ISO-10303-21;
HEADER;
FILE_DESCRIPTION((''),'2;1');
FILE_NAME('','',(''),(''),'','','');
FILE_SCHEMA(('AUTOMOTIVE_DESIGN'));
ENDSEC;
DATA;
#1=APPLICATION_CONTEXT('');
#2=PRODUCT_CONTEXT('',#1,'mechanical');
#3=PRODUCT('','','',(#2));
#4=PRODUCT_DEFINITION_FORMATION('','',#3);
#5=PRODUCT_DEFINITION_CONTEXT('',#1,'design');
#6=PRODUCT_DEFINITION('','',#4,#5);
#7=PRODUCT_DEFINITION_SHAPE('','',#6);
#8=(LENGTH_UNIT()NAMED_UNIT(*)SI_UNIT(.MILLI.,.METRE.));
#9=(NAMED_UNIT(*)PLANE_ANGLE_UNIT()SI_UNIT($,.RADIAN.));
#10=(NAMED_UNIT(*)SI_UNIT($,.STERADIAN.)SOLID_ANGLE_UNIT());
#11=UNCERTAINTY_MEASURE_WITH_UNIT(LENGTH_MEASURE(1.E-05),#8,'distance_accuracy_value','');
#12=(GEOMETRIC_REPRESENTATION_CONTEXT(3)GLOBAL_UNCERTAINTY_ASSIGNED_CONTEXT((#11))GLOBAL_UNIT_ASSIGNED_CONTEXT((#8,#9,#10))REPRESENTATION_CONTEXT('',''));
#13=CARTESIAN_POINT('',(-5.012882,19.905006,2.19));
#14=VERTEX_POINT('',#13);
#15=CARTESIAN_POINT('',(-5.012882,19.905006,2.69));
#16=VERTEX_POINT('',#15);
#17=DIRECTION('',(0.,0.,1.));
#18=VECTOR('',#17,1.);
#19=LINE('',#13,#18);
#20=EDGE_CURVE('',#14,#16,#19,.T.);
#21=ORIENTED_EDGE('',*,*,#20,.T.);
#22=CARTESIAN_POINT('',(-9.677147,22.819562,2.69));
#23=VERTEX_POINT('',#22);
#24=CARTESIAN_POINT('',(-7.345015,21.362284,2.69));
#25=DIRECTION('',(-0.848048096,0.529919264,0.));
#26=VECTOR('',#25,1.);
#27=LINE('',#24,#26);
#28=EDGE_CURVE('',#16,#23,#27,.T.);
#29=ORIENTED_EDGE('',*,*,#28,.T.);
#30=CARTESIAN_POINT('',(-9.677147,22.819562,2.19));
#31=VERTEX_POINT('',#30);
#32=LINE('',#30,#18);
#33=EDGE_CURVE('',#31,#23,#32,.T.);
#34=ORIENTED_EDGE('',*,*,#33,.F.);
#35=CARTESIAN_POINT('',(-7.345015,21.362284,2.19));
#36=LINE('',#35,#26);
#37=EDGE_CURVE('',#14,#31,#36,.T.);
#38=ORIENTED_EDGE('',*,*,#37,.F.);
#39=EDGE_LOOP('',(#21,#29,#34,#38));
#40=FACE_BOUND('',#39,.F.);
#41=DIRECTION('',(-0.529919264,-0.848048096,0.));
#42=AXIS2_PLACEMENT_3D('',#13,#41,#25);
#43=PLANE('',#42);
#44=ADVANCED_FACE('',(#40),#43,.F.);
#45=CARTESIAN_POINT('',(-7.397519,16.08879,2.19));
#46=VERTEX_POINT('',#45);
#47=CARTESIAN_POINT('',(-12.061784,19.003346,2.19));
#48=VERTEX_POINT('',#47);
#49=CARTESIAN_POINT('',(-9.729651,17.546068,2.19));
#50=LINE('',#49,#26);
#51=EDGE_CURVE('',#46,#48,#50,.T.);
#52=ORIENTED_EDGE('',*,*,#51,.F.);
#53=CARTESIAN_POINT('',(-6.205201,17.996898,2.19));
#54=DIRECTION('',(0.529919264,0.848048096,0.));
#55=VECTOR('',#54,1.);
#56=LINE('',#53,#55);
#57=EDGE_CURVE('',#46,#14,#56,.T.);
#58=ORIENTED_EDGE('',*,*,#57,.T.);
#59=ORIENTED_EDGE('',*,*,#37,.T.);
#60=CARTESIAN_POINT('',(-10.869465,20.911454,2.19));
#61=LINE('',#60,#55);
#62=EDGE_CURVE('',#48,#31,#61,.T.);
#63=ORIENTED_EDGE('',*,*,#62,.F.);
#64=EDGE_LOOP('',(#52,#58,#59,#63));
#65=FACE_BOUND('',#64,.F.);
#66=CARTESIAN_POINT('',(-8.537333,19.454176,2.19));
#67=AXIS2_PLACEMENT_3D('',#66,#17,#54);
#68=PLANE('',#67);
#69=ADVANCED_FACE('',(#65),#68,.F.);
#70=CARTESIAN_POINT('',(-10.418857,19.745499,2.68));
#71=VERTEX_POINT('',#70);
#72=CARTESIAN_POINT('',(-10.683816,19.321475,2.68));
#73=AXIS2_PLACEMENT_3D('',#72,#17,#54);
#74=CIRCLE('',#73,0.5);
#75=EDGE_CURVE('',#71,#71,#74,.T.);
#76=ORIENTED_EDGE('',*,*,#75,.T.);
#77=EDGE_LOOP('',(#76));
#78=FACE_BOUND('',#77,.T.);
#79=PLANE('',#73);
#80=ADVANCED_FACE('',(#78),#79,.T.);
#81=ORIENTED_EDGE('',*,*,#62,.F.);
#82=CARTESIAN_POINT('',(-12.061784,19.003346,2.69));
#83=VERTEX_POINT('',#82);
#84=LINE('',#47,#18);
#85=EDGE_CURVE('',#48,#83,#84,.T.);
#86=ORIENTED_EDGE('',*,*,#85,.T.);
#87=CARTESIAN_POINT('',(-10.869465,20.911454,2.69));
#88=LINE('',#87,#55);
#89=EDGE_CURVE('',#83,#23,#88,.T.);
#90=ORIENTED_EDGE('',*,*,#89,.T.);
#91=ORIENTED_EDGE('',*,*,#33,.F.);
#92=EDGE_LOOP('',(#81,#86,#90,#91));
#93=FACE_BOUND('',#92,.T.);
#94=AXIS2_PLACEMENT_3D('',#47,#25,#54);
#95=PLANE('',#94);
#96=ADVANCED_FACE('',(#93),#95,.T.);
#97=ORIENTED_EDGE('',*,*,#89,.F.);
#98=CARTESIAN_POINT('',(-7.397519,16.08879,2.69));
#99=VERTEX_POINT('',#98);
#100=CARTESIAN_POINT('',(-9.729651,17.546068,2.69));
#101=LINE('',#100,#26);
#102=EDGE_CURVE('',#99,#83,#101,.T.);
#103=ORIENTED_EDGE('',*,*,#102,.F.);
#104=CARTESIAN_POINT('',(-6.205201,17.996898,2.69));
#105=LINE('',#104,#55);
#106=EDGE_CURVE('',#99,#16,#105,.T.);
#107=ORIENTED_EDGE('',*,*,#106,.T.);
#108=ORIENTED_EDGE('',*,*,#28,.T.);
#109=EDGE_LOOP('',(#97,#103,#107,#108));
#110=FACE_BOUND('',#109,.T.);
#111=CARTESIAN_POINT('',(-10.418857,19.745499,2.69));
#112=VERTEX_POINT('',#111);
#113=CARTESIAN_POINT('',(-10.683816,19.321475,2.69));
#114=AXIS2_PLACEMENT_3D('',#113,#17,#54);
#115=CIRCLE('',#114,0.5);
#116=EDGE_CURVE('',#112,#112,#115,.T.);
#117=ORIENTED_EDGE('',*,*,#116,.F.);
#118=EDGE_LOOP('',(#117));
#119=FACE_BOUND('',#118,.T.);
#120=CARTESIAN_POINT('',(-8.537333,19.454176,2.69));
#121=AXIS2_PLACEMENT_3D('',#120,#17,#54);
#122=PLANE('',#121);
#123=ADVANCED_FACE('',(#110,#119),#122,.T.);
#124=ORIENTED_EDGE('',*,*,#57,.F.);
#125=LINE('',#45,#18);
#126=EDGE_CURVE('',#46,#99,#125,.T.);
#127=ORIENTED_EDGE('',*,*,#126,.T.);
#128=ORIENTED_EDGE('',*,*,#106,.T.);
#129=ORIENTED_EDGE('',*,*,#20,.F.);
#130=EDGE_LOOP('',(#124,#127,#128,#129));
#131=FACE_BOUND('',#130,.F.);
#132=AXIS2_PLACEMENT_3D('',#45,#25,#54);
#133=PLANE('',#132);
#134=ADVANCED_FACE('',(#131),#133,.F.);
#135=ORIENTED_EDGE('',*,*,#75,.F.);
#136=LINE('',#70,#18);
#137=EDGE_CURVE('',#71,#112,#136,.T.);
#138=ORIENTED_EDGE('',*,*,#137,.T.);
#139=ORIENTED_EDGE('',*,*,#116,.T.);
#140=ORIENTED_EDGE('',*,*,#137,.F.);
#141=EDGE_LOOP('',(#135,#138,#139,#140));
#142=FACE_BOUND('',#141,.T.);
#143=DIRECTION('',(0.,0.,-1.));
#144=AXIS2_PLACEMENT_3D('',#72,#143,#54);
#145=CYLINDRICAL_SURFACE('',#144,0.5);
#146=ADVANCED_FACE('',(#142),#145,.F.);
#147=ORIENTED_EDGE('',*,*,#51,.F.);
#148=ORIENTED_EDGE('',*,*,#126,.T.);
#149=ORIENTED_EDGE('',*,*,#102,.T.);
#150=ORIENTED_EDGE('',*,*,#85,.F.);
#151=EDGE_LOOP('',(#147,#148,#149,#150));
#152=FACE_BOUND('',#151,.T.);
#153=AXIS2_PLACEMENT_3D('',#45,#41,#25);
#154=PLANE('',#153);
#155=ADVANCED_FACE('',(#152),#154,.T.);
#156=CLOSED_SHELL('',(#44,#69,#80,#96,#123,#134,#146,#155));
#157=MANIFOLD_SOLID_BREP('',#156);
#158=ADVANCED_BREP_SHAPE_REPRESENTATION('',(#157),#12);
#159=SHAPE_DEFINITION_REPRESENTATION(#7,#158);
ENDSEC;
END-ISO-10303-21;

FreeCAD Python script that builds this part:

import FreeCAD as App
import Part
import Sketcher
Q = App.Units.Quantity


def add_polygon(sketch, points):
    """Adds a closed chain of lines whose ends are joined by coincident constraints."""
    first, n = sketch.GeometryCount, len(points)
    for a, b in zip(points, points[1:] + points[:1]):
        sketch.addGeometry(Part.LineSegment(App.Vector(*a, 0), App.Vector(*b, 0)), False)
    for i in range(n):
        sketch.addConstraint(Sketcher.Constraint("Coincident", first + i, 2, first + (i + 1) % n, 1))

doc = App.newDocument("Part")
body = doc.addObject("PartDesign::Body", "Body")

# Sketch on XY plane
sketch1 = body.newObject("Sketcher::SketchObject", "Sketch")
sketch1.AttachmentSupport = (doc.getObject("XY_Plane"), [""])
sketch1.MapMode = "FlatFace"
sketch1.AttachmentOffset = App.Placement(App.Vector(0, 0, 0.49), App.Rotation())
sketch1.addGeometry(Part.Circle(App.Vector(1, 4.5, 0), App.Vector(0, 0, 1), 0.5), False)
sketch1.addConstraint([
    Sketcher.Constraint("Diameter", 0, Q("1 mm")),
    Sketcher.Constraint("DistanceX", -1, 1, 0, 3, Q("1 mm")),
    Sketcher.Constraint("DistanceY", -1, 1, 0, 3, Q("4.5 mm")),
])
pad1 = body.newObject("PartDesign::Pad", "Pad")
pad1.Profile = sketch1
pad1.Length = 0.01
body2 = doc.addObject("PartDesign::Body", "Body001")

# Sketch on XY plane
sketch2 = body2.newObject("Sketcher::SketchObject", "Sketch001")
sketch2.AttachmentSupport = (doc.getObject("XY_Plane001"), [""])
sketch2.MapMode = "FlatFace"
add_polygon(sketch2, [(0, 5.5), (0, 0), (4.5, 0), (4.5, 5.5)])  # lines 0-3
sketch2.addConstraint([
    Sketcher.Constraint("Vertical", 0),
    Sketcher.Constraint("Horizontal", 1),
    Sketcher.Constraint("Vertical", 2),
    Sketcher.Constraint("Horizontal", 3),
    Sketcher.Constraint("Coincident", 0, 2, -1, 1),
    Sketcher.Constraint("DistanceX", 1, 1, 1, 2, Q("4.5 mm")),
    Sketcher.Constraint("DistanceY", 0, 2, 0, 1, Q("5.5 mm")),
])
pad2 = body2.newObject("PartDesign::Pad", "Pad001")
pad2.Profile = sketch2
pad2.Length = 0.5
doc.recompute()

boolean = body2.newObject("PartDesign::Boolean", "Boolean")
boolean.Type = "Cut"
boolean.addObjects([body])
body3 = doc.addObject("PartDesign::Body", "Body002")
doc.recompute()

body2.Placement = App.Placement(App.Vector(-7.397519, 16.08879, 2.19), App.Rotation(App.Vector(0, 0, 1), 58))
boolean2 = body3.newObject("PartDesign::Boolean", "Boolean001")
boolean2.Type = "Fuse"
boolean2.addObjects([body2])

doc.recompute()
